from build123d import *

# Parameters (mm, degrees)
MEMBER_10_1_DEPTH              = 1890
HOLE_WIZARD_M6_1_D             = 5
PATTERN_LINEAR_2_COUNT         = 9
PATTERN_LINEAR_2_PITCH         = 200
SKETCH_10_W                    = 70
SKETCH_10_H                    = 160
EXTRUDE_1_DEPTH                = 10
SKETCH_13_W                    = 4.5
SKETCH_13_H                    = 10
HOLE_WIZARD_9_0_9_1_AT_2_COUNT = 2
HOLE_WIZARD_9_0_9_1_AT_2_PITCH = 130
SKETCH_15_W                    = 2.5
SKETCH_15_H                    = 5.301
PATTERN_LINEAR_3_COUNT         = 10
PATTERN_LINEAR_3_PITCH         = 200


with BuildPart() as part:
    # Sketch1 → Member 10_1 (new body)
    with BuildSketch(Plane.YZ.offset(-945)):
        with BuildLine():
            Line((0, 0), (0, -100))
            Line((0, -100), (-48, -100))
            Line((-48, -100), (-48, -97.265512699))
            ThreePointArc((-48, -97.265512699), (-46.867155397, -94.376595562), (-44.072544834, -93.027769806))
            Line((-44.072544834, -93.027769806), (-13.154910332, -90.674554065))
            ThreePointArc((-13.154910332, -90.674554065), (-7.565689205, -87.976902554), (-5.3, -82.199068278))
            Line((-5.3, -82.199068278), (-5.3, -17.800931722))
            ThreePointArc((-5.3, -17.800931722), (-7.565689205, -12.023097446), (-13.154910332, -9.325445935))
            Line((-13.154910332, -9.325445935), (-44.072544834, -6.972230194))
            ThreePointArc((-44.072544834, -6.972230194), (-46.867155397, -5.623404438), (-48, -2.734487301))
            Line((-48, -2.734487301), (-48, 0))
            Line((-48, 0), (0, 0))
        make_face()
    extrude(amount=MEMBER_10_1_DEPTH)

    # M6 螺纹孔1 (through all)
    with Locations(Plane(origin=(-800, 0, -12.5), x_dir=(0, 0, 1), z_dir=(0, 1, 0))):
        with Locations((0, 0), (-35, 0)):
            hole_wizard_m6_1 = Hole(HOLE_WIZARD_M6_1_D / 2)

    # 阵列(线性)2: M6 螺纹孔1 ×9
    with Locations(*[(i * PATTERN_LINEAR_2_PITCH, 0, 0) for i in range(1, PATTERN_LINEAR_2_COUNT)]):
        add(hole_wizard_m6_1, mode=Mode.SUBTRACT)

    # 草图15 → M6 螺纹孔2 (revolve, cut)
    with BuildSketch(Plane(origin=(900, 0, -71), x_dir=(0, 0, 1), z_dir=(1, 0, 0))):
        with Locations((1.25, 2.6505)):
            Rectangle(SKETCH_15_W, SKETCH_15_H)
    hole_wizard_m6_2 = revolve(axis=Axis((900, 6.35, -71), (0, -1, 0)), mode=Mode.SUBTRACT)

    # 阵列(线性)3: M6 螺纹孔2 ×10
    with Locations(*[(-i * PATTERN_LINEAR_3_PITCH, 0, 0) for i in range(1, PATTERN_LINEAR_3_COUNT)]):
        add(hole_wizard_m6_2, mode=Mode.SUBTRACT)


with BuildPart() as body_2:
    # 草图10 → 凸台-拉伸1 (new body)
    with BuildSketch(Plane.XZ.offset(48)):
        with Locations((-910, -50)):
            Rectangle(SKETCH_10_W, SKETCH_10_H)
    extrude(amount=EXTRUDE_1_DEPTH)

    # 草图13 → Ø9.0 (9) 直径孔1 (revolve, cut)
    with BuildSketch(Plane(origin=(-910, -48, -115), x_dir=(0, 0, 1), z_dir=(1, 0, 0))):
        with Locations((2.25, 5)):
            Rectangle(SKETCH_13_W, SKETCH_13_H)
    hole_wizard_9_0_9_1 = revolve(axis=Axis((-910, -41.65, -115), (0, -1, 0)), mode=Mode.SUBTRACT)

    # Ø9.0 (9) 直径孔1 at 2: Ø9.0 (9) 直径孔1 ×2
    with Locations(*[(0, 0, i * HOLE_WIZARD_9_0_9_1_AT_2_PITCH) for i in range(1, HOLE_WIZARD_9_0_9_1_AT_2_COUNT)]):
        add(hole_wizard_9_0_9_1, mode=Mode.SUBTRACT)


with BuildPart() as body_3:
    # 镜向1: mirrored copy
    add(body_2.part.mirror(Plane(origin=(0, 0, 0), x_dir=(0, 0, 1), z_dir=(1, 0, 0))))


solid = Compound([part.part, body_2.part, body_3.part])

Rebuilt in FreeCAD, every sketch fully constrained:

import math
import FreeCAD as App
import Part
import Sketcher

V = App.Vector


def add_polygon(sketch, points):
    """Adds a closed chain of lines whose ends are joined by coincident constraints."""
    first, n = sketch.GeometryCount, len(points)
    for a, b in zip(points, points[1:] + points[:1]):
        sketch.addGeometry(Part.LineSegment(App.Vector(*a, 0), App.Vector(*b, 0)), False)
    for i in range(n):
        sketch.addConstraint(Sketcher.Constraint("Coincident", first + i, 2, first + (i + 1) % n, 1))

doc = App.newDocument("Part")
params = doc.addObject("Spreadsheet::Sheet", "Params")
for row, (alias, value) in enumerate([
    ("sketch1_radius", "8.5 mm"),
    ("sketch1_width", "48 mm"),
    ("sketch1_height", "100 mm"),
    ("sketch1_radius2", "4.25 mm"),
    ("pad1_length", "1890 mm"),
    ("sketch2_diameter", "5 mm"),
    ("hole_diameter", "5 mm"),
    ("linearpattern_pitch", "200 mm"),
    ("sketch3_height", "2.5 mm"),
    ("groove_angle", "360 deg"),
    ("linearpattern2_pitch", "200 mm"),
    ("sketch4_width", "70 mm"),
    ("sketch4_height", "160 mm"),
    ("pad2_length", "10 mm"),
    ("sketch5_width", "10 mm"),
    ("sketch5_height", "4.5 mm"),
    ("groove2_angle", "360 deg"),
    ("linearpattern3_pitch", "130 mm"),
], start=1):
    params.set(f"A{row}", alias)
    params.set(f"B{row}", "=" + value)
    params.setAlias(f"B{row}", alias)

body = doc.addObject("PartDesign::Body", "Body")

# Sketch on YZ plane
sketch1 = body.newObject("Sketcher::SketchObject", "Sketch")
sketch1.AttachmentSupport = (doc.getObject("YZ_Plane"), [""])
sketch1.MapMode = "FlatFace"
sketch1.AttachmentOffset = App.Placement(V(0, 0, -945), App.Rotation())
sketch1.addGeometry(Part.LineSegment(V(0, -100, 0), V(0, 0, 0)), False)
sketch1.addGeometry(Part.LineSegment(V(0, 0, 0), V(-48, 0, 0)), False)
sketch1.addGeometry(Part.LineSegment(V(-48, 0, 0), V(-48, -2.7, 0)), False)
sketch1.addGeometry(Part.ArcOfCircle(Part.Circle(V(-43.7, -2.7, 0), V(0, 0, 1), 4.3), math.radians(-180), math.radians(-94)), False)
sketch1.addGeometry(Part.LineSegment(V(-44.1, -7, 0), V(-13.2, -9.3, 0)), False)
sketch1.addGeometry(Part.ArcOfCircle(Part.Circle(V(-13.8, -17.8, 0), V(0, 0, 1), 8.5), math.radians(0), math.radians(86)), False)
sketch1.addGeometry(Part.LineSegment(V(-5.3, -17.8, 0), V(-5.3, -82.2, 0)), False)
sketch1.addGeometry(Part.ArcOfCircle(Part.Circle(V(-13.8, -82.2, 0), V(0, 0, 1), 8.5), math.radians(-86), math.radians(0)), False)
sketch1.addGeometry(Part.LineSegment(V(-13.2, -90.7, 0), V(-44.1, -93, 0)), False)
sketch1.addGeometry(Part.ArcOfCircle(Part.Circle(V(-43.7, -97.3, 0), V(0, 0, 1), 4.3), math.radians(94), math.radians(180)), False)
sketch1.addGeometry(Part.LineSegment(V(-48, -97.3, 0), V(-48, -100, 0)), False)
sketch1.addGeometry(Part.LineSegment(V(-48, -100, 0), V(0, -100, 0)), False)
sketch1.addConstraint(Sketcher.Constraint("Coincident", 0, 2, 1, 1))
sketch1.addConstraint(Sketcher.Constraint("Coincident", 1, 2, 2, 1))
sketch1.addConstraint(Sketcher.Constraint("Tangent", 2, 2, 3, 1))
sketch1.addConstraint(Sketcher.Constraint("Tangent", 3, 2, 4, 1))
sketch1.addConstraint(Sketcher.Constraint("Tangent", 4, 2, 5, 2))
sketch1.addConstraint(Sketcher.Constraint("Tangent", 5, 1, 6, 1))
sketch1.addConstraint(Sketcher.Constraint("Tangent", 6, 2, 7, 2))
sketch1.addConstraint(Sketcher.Constraint("Tangent", 7, 1, 8, 1))
sketch1.addConstraint(Sketcher.Constraint("Tangent", 8, 2, 9, 1))
sketch1.addConstraint(Sketcher.Constraint("Tangent", 9, 2, 10, 1))
sketch1.addConstraint(Sketcher.Constraint("Coincident", 10, 2, 11, 1))
sketch1.addConstraint(Sketcher.Constraint("Coincident", 11, 2, 0, 1))
sketch1.addConstraint(Sketcher.Constraint("Vertical", 0))
sketch1.addConstraint(Sketcher.Constraint("Horizontal", 1))
sketch1.addConstraint(Sketcher.Constraint("Vertical", 2))
sketch1.addConstraint(Sketcher.Constraint("Vertical", 6))
sketch1.addConstraint(Sketcher.Constraint("Vertical", 10))
sketch1.addConstraint(Sketcher.Constraint("Horizontal", 11))
sketch1.addConstraint(Sketcher.Constraint("Coincident", 0, 2, -1, 1))
sketch1.addConstraint(Sketcher.Constraint("Equal", 5, 7))
sketch1.addConstraint(Sketcher.Constraint("Equal", 3, 9))
sketch1.addConstraint(Sketcher.Constraint("Vertical", 3, 3, 9, 3))
sketch1.addConstraint(Sketcher.Constraint("Vertical", 4, 2, 7, 1))
sketch1.addConstraint(Sketcher.Constraint("Equal", 2, 10))
sketch1.addConstraint(Sketcher.Constraint("Radius", 5, 8.5))
sketch1.addConstraint(Sketcher.Constraint("DistanceX", 1, 2, 1, 1, 48.0))
sketch1.addConstraint(Sketcher.Constraint("DistanceY", 0, 1, 0, 2, 100.0))
sketch1.addConstraint(Sketcher.Constraint("Radius", 3, 4.25))
sketch1.addConstraint(Sketcher.Constraint("DistanceX", 5, 3, -1, 1, 13.8))
sketch1.addConstraint(Sketcher.Constraint("DistanceY", 5, 3, 3, 2, 10.828702))
sketch1.addConstraint(Sketcher.Constraint("DistanceY", 2, 2, 2, 1, 2.734487))
sketch1.setExpression("Constraints[24]", "Params.sketch1_radius")
sketch1.setExpression("Constraints[25]", "Params.sketch1_width")
sketch1.setExpression("Constraints[26]", "Params.sketch1_height")
sketch1.setExpression("Constraints[27]", "Params.sketch1_radius2")
pad1 = body.newObject("PartDesign::Pad", "Pad")
pad1.Profile = sketch1
pad1.setExpression("Length", "Params.pad1_length")

# Sketch on XZ plane
sketch2 = body.newObject("Sketcher::SketchObject", "Sketch001")
sketch2.AttachmentSupport = (doc.getObject("XZ_Plane"), [""])
sketch2.MapMode = "FlatFace"
sketch2.addGeometry(Part.Circle(V(-800, -12.5, 0), V(0, 0, 1), 2.5), False)
sketch2.addGeometry(Part.Circle(V(-800, -47.5, 0), V(0, 0, 1), 2.5), False)
sketch2.addConstraint(Sketcher.Constraint("Equal", 0, 1))
sketch2.addConstraint(Sketcher.Constraint("Vertical", 0, 3, 1, 3))
sketch2.addConstraint(Sketcher.Constraint("Diameter", 0, 5.0))
sketch2.addConstraint(Sketcher.Constraint("DistanceX", 0, 3, -1, 1, 800.0))
sketch2.addConstraint(Sketcher.Constraint("DistanceY", 1, 3, 0, 3, 35.0))
sketch2.addConstraint(Sketcher.Constraint("DistanceY", 0, 3, -1, 1, 12.5))
sketch2.setExpression("Constraints[2]", "Params.sketch2_diameter")
doc.recompute()
hole = body.newObject("PartDesign::Hole", "Hole")
hole.Profile = sketch2
hole.ThreadType = "None"
hole.setExpression("Diameter", "Params.hole_diameter")
hole.DepthType = "ThroughAll"
hole.Reversed = True
doc.recompute()

linearpattern = body.newObject("PartDesign::LinearPattern", "LinearPattern")
linearpattern.Originals = [hole]
linearpattern.Direction = (doc.getObject("X_Axis"), [""])
linearpattern.Mode = "offset"
linearpattern.setExpression("Offset", "Params.linearpattern_pitch")
linearpattern.Occurrences = 9
body.Tip = linearpattern

# Sketch on YZ plane
sketch3 = body.newObject("Sketcher::SketchObject", "Sketch002")
sketch3.AttachmentSupport = (doc.getObject("YZ_Plane"), [""])
sketch3.MapMode = "FlatFace"
sketch3.AttachmentOffset = App.Placement(V(0, 0, 900), App.Rotation())
add_polygon(sketch3, [(-5.3, -71), (0, -71), (0, -68.5), (-5.3, -68.5)])  # lines 0-3
sketch3.addGeometry(Part.LineSegment(V(0, -71, 0), V(-5.3, -71, 0)), True)  # axis
sketch3.addConstraint(Sketcher.Constraint("Horizontal", 0))
sketch3.addConstraint(Sketcher.Constraint("Vertical", 1))
sketch3.addConstraint(Sketcher.Constraint("Horizontal", 2))
sketch3.addConstraint(Sketcher.Constraint("Vertical", 3))
sketch3.addConstraint(Sketcher.Constraint("Horizontal", 4))
sketch3.addConstraint(Sketcher.Constraint("Coincident", 4, 1, 0, 2))
sketch3.addConstraint(Sketcher.Constraint("PointOnObject", 0, 2, -2))
sketch3.addConstraint(Sketcher.Constraint("Vertical", 2, 2, 4, 2))
sketch3.addConstraint(Sketcher.Constraint("DistanceY", 1, 1, 1, 2, 2.5))
sketch3.addConstraint(Sketcher.Constraint("DistanceY", 0, 2, -1, 1, 71.0))
sketch3.addConstraint(Sketcher.Constraint("DistanceX", 0, 1, 0, 2, 5.301))
sketch3.setExpression("Constraints[12]", "Params.sketch3_height")
groove = body.newObject("PartDesign::Groove", "Groove")
groove.Profile = sketch3
groove.ReferenceAxis = (sketch3, ["Axis0"])
groove.setExpression("Angle", "Params.groove_angle")
doc.recompute()

linearpattern2 = body.newObject("PartDesign::LinearPattern", "LinearPattern001")
linearpattern2.Originals = [groove]
linearpattern2.Direction = (doc.getObject("X_Axis"), [""])
linearpattern2.Mode = "offset"
linearpattern2.setExpression("Offset", "Params.linearpattern2_pitch")
linearpattern2.Occurrences = 10
linearpattern2.Reversed = True
body.Tip = linearpattern2
body2 = doc.addObject("PartDesign::Body", "Body001")

# Sketch on XZ plane
sketch4 = body2.newObject("Sketcher::SketchObject", "Sketch003")
sketch4.AttachmentSupport = (doc.getObject("XZ_Plane001"), [""])
sketch4.MapMode = "FlatFace"
sketch4.AttachmentOffset = App.Placement(V(0, 0, 48), App.Rotation())
add_polygon(sketch4, [(-945, 30), (-945, -130), (-875, -130), (-875, 30)])  # lines 0-3
sketch4.addConstraint(Sketcher.Constraint("Vertical", 0))
sketch4.addConstraint(Sketcher.Constraint("Horizontal", 1))
sketch4.addConstraint(Sketcher.Constraint("Vertical", 2))
sketch4.addConstraint(Sketcher.Constraint("Horizontal", 3))
sketch4.addConstraint(Sketcher.Constraint("DistanceX", 1, 1, 1, 2, 70.0))
sketch4.addConstraint(Sketcher.Constraint("DistanceY", 0, 2, 0, 1, 160.0))
sketch4.addConstraint(Sketcher.Constraint("DistanceX", 0, 2, -1, 1, 945.0))
sketch4.addConstraint(Sketcher.Constraint("DistanceY", 0, 2, -1, 1, 130.0))
sketch4.setExpression("Constraints[8]", "Params.sketch4_width")
sketch4.setExpression("Constraints[9]", "Params.sketch4_height")
pad2 = body2.newObject("PartDesign::Pad", "Pad001")
pad2.Profile = sketch4
pad2.setExpression("Length", "Params.pad2_length")

# Sketch on YZ plane
sketch5 = body2.newObject("Sketcher::SketchObject", "Sketch004")
sketch5.AttachmentSupport = (doc.getObject("YZ_Plane001"), [""])
sketch5.MapMode = "FlatFace"
sketch5.AttachmentOffset = App.Placement(V(0, 0, -910), App.Rotation())
add_polygon(sketch5, [(-58, -115), (-48, -115), (-48, -110.5), (-58, -110.5)])  # lines 0-3
sketch5.addGeometry(Part.LineSegment(V(-48, -115, 0), V(-58, -115, 0)), True)  # axis
sketch5.addConstraint(Sketcher.Constraint("Horizontal", 0))
sketch5.addConstraint(Sketcher.Constraint("Vertical", 1))
sketch5.addConstraint(Sketcher.Constraint("Horizontal", 2))
sketch5.addConstraint(Sketcher.Constraint("Vertical", 3))
sketch5.addConstraint(Sketcher.Constraint("Horizontal", 4))
sketch5.addConstraint(Sketcher.Constraint("Coincident", 4, 1, 0, 2))
sketch5.addConstraint(Sketcher.Constraint("Vertical", 2, 2, 4, 2))
sketch5.addConstraint(Sketcher.Constraint("DistanceX", 0, 1, 0, 2, 10.0))
sketch5.addConstraint(Sketcher.Constraint("DistanceY", 1, 1, 1, 2, 4.5))
sketch5.addConstraint(Sketcher.Constraint("DistanceX", 0, 2, -1, 1, 48.0))
sketch5.addConstraint(Sketcher.Constraint("DistanceY", 0, 2, -1, 1, 115.0))
sketch5.setExpression("Constraints[11]", "Params.sketch5_width")
sketch5.setExpression("Constraints[12]", "Params.sketch5_height")
groove2 = body2.newObject("PartDesign::Groove", "Groove001")
groove2.Profile = sketch5
groove2.ReferenceAxis = (sketch5, ["Axis0"])
groove2.setExpression("Angle", "Params.groove2_angle")
doc.recompute()

linearpattern3 = body2.newObject("PartDesign::LinearPattern", "LinearPattern002")
linearpattern3.Originals = [groove2]
linearpattern3.Direction = (doc.getObject("Z_Axis001"), [""])
linearpattern3.Mode = "offset"
linearpattern3.setExpression("Offset", "Params.linearpattern3_pitch")
linearpattern3.Occurrences = 2
body2.Tip = linearpattern3
body3 = doc.addObject("PartDesign::Body", "Body002")
doc.recompute()

mirroring = doc.addObject("Part::Mirroring", "Mirroring")
mirroring.Source = body2
mirroring.Base = V(0, 0, 0)
mirroring.Normal = V(1, 0, 0)
body3.BaseFeature = mirroring
doc.recompute()
mirroring.Visibility = False

doc.recompute()
